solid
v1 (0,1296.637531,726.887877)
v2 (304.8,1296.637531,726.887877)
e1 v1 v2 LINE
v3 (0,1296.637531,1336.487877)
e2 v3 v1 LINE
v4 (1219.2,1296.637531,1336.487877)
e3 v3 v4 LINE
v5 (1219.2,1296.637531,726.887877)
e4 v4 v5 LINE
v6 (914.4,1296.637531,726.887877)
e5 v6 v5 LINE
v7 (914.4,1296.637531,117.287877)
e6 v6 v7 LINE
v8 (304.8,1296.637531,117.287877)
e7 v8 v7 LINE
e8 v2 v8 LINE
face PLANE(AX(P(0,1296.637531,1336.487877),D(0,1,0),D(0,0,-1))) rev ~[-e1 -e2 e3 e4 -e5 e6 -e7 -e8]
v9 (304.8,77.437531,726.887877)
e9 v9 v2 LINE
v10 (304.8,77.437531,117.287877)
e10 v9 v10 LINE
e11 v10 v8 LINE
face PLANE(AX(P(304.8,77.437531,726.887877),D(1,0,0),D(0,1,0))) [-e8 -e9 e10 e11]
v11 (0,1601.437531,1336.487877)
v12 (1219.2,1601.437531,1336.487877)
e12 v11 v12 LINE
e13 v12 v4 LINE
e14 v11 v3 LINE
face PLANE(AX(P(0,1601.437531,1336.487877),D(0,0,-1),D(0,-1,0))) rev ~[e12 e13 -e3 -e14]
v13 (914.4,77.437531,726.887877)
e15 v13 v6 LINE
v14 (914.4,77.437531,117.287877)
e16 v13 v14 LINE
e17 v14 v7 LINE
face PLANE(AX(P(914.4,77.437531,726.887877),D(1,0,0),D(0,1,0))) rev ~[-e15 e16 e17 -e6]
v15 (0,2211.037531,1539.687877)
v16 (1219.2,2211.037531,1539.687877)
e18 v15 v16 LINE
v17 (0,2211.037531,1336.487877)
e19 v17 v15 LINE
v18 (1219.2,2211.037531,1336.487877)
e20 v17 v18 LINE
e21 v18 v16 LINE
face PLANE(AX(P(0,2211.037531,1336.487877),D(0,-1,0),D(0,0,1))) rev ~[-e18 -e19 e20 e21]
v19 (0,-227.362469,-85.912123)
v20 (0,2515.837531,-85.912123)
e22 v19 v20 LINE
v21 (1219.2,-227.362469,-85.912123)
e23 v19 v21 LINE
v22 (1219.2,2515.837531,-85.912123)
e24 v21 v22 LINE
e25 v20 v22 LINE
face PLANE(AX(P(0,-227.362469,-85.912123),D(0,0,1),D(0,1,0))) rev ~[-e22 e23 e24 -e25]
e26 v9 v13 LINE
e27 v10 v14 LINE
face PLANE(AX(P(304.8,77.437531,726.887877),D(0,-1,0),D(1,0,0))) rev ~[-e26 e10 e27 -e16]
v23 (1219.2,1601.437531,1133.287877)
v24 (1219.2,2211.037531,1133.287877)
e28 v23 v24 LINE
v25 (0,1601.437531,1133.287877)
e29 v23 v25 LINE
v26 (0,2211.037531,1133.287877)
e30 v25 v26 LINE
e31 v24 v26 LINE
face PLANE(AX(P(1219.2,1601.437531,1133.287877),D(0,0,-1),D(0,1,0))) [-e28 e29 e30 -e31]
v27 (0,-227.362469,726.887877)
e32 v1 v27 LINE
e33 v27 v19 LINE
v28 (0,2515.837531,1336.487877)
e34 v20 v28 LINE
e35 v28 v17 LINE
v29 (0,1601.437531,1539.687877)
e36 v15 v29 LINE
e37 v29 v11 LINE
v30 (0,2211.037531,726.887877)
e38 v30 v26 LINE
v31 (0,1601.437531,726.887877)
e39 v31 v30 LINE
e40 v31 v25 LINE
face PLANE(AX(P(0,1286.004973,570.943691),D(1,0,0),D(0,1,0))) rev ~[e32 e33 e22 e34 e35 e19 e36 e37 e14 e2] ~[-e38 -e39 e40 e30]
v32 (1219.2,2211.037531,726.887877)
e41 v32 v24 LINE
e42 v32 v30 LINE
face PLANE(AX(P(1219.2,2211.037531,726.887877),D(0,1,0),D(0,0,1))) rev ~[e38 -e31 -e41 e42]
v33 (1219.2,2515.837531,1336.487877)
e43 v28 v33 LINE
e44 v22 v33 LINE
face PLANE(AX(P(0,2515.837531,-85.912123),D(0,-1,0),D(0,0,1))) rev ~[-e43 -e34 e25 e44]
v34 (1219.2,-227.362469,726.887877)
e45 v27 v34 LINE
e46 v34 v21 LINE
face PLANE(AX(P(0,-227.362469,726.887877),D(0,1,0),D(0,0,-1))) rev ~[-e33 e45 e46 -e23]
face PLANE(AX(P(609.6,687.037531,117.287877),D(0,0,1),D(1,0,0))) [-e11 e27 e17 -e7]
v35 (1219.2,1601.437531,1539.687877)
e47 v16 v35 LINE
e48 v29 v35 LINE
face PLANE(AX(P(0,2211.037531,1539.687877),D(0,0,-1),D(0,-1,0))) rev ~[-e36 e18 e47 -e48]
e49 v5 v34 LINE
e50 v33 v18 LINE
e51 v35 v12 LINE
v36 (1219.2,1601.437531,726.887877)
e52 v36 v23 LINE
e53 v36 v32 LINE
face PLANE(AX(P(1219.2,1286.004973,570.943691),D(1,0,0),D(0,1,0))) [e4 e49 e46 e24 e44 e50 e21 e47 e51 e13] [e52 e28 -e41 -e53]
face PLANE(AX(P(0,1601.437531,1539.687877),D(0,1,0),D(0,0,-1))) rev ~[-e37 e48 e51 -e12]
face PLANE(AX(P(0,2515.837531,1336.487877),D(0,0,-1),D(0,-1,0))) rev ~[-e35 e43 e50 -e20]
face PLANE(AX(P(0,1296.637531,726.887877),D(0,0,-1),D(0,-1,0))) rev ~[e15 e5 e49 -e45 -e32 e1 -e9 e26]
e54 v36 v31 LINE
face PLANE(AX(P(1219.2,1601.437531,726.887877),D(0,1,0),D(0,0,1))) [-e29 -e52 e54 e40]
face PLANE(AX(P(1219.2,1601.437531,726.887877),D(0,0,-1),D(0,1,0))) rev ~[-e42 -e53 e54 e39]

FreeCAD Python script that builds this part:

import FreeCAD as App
import Part
import Sketcher
from FreeCAD import Vector
Q = App.Units.Quantity

doc = App.newDocument("Part")
params = doc.addObject("Spreadsheet::Sheet", "Params")
for row, (alias, value) in enumerate([
    ("sketch1_width", "108 in"),
    ("sketch1_width2", "12 in"),
    ("sketch1_width3", "24 in"),
    ("sketch1_height", "32 in"),
    ("sketch1_height2", "8 in"),
    ("pad1_length", "48 in"),
    ("sketch2_width", "24 in"),
    ("sketch2_height", "16 in"),
    ("pocket1_length", "48 in"),
    ("sketch3_width", "24 in"),
    ("sketch3_height", "48 in"),
    ("pocket2_length", "24 in"),
], start=1):
    params.set(f"A{row}", alias)
    params.set(f"B{row}", "=" + value)
    params.setAlias(f"B{row}", alias)

body = doc.addObject("PartDesign::Body", "Body")

# Sketch on YZ plane
sketch1 = body.newObject("Sketcher::SketchObject", "Sketch")
sketch1.AttachmentSupport = (doc.getObject("YZ_Plane"), [""])
sketch1.MapMode = "FlatFace"
sketch1.addGeometry([
    Part.LineSegment(Vector(-227.362469, 726.887877, 0), Vector(-227.362469, -85.912123, 0)),  # 0
    Part.LineSegment(Vector(-227.362469, -85.912123, 0), Vector(2515.837531, -85.912123, 0)),  # 1
    Part.LineSegment(Vector(2515.837531, -85.912123, 0), Vector(2515.837531, 1336.487877, 0)),  # 2
    Part.LineSegment(Vector(2515.837531, 1336.487877, 0), Vector(2211.037531, 1336.487877, 0)),  # 3
    Part.LineSegment(Vector(2211.037531, 1336.487877, 0), Vector(2211.037531, 1539.687877, 0)),  # 4
    Part.LineSegment(Vector(2211.037531, 1539.687877, 0), Vector(1601.437531, 1539.687877, 0)),  # 5
    Part.LineSegment(Vector(1601.437531, 1539.687877, 0), Vector(1601.437531, 1336.487877, 0)),  # 6
    Part.LineSegment(Vector(1601.437531, 1336.487877, 0), Vector(1296.637531, 1336.487877, 0)),  # 7
    Part.LineSegment(Vector(1296.637531, 1336.487877, 0), Vector(1296.637531, 726.887877, 0)),  # 8
    Part.LineSegment(Vector(1296.637531, 726.887877, 0), Vector(-227.362469, 726.887877, 0)),  # 9
], False)
sketch1.addConstraint([
    Sketcher.Constraint("Coincident", 0, 2, 1, 1),
    Sketcher.Constraint("Coincident", 1, 2, 2, 1),
    Sketcher.Constraint("Coincident", 2, 2, 3, 1),
    Sketcher.Constraint("Coincident", 3, 2, 4, 1),
    Sketcher.Constraint("Coincident", 4, 2, 5, 1),
    Sketcher.Constraint("Coincident", 5, 2, 6, 1),
    Sketcher.Constraint("Coincident", 6, 2, 7, 1),
    Sketcher.Constraint("Coincident", 7, 2, 8, 1),
    Sketcher.Constraint("Coincident", 8, 2, 9, 1),
    Sketcher.Constraint("Coincident", 9, 2, 0, 1),
    Sketcher.Constraint("Vertical", 0),
    Sketcher.Constraint("Horizontal", 1),
    Sketcher.Constraint("Vertical", 2),
    Sketcher.Constraint("Horizontal", 3),
    Sketcher.Constraint("Vertical", 4),
    Sketcher.Constraint("Horizontal", 5),
    Sketcher.Constraint("Vertical", 6),
    Sketcher.Constraint("Horizontal", 7),
    Sketcher.Constraint("Vertical", 8),
    Sketcher.Constraint("Horizontal", 9),
    Sketcher.Constraint("Horizontal", 3, 2, 6, 2),
    Sketcher.Constraint("Equal", 3, 7),
    Sketcher.Constraint("Equal", 5, 8),
    Sketcher.Constraint("DistanceX", 1, 1, 1, 2, Q("108 in")),
    Sketcher.Constraint("DistanceX", 3, 2, 3, 1, Q("12 in")),
    Sketcher.Constraint("DistanceX", 5, 2, 5, 1, Q("24 in")),
    Sketcher.Constraint("DistanceY", 0, 2, 0, 1, Q("32 in")),
    Sketcher.Constraint("DistanceY", 4, 1, 4, 2, Q("8 in")),
    Sketcher.Constraint("DistanceX", 0, 2, -1, 1, 227.362469),
    Sketcher.Constraint("DistanceY", 0, 2, -1, 1, 85.912123),
])
sketch1.setExpression("Constraints[23]", "Params.sketch1_width")
sketch1.setExpression("Constraints[24]", "Params.sketch1_width2")
sketch1.setExpression("Constraints[25]", "Params.sketch1_width3")
sketch1.setExpression("Constraints[26]", "Params.sketch1_height")
sketch1.setExpression("Constraints[27]", "Params.sketch1_height2")
pad1 = body.newObject("PartDesign::Pad", "Pad")
pad1.Profile = sketch1
pad1.setExpression("Length", "Params.pad1_length")

# Sketch on YZ plane
sketch2 = body.newObject("Sketcher::SketchObject", "Sketch001")
sketch2.AttachmentSupport = (doc.getObject("YZ_Plane"), [""])
sketch2.MapMode = "FlatFace"
sketch2.AttachmentOffset = App.Placement(Vector(0, 0, 48 * 25.4), App.Rotation())
sketch2.addGeometry([
    Part.LineSegment(Vector(1601.437531, 1133.287877, 0), Vector(1601.437531, 726.887877, 0)),
    Part.LineSegment(Vector(1601.437531, 726.887877, 0), Vector(2211.037531, 726.887877, 0)),
    Part.LineSegment(Vector(2211.037531, 726.887877, 0), Vector(2211.037531, 1133.287877, 0)),
    Part.LineSegment(Vector(2211.037531, 1133.287877, 0), Vector(1601.437531, 1133.287877, 0)),
], False)
sketch2.addConstraint([
    Sketcher.Constraint("Coincident", 0, 2, 1, 1),
    Sketcher.Constraint("Coincident", 1, 2, 2, 1),
    Sketcher.Constraint("Coincident", 2, 2, 3, 1),
    Sketcher.Constraint("Coincident", 3, 2, 0, 1),
    Sketcher.Constraint("Vertical", 0),
    Sketcher.Constraint("Horizontal", 1),
    Sketcher.Constraint("Vertical", 2),
    Sketcher.Constraint("Horizontal", 3),
    Sketcher.Constraint("DistanceX", 1, 1, 1, 2, Q("24 in")),
    Sketcher.Constraint("DistanceY", 0, 2, 0, 1, Q("16 in")),
    Sketcher.Constraint("DistanceX", -1, 1, 0, 2, 1601.437531),
    Sketcher.Constraint("DistanceY", -1, 1, 0, 2, 726.887877),
])
sketch2.setExpression("Constraints[8]", "Params.sketch2_width")
sketch2.setExpression("Constraints[9]", "Params.sketch2_height")
pocket1 = body.newObject("PartDesign::Pocket", "Pocket")
pocket1.Profile = sketch2
pocket1.setExpression("Length", "Params.pocket1_length")

# Sketch on XY plane
sketch3 = body.newObject("Sketcher::SketchObject", "Sketch002")
sketch3.AttachmentSupport = (doc.getObject("XY_Plane"), [""])
sketch3.MapMode = "FlatFace"
sketch3.AttachmentOffset = App.Placement(Vector(0, 0, 726.887877), App.Rotation())
sketch3.addGeometry([
    Part.LineSegment(Vector(304.8, 1296.637531, 0), Vector(304.8, 77.437531, 0)),
    Part.LineSegment(Vector(304.8, 77.437531, 0), Vector(914.4, 77.437531, 0)),
    Part.LineSegment(Vector(914.4, 77.437531, 0), Vector(914.4, 1296.637531, 0)),
    Part.LineSegment(Vector(914.4, 1296.637531, 0), Vector(304.8, 1296.637531, 0)),
], False)
sketch3.addConstraint([
    Sketcher.Constraint("Coincident", 0, 2, 1, 1),
    Sketcher.Constraint("Coincident", 1, 2, 2, 1),
    Sketcher.Constraint("Coincident", 2, 2, 3, 1),
    Sketcher.Constraint("Coincident", 3, 2, 0, 1),
    Sketcher.Constraint("Vertical", 0),
    Sketcher.Constraint("Horizontal", 1),
    Sketcher.Constraint("Vertical", 2),
    Sketcher.Constraint("Horizontal", 3),
    Sketcher.Constraint("DistanceX", 1, 1, 1, 2, Q("24 in")),
    Sketcher.Constraint("DistanceY", 0, 2, 0, 1, Q("48 in")),
    Sketcher.Constraint("DistanceX", -1, 1, 0, 2, Q("12 in")),
    Sketcher.Constraint("DistanceY", -1, 1, 0, 2, 77.437531),
])
sketch3.setExpression("Constraints[8]", "Params.sketch3_width")
sketch3.setExpression("Constraints[9]", "Params.sketch3_height")
pocket2 = body.newObject("PartDesign::Pocket", "Pocket001")
pocket2.Profile = sketch3
pocket2.setExpression("Length", "Params.pocket2_length")

doc.recompute()
